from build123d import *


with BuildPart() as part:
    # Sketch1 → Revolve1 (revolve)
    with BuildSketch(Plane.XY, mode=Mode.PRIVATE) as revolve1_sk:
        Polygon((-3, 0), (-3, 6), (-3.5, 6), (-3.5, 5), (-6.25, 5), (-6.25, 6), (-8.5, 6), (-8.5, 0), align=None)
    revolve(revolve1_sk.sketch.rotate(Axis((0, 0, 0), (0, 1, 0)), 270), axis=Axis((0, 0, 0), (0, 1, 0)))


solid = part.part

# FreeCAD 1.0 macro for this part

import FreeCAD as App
import Part
import Sketcher

V = App.Vector

doc = App.newDocument("Part")
body = doc.addObject("PartDesign::Body", "Body")

# Sketch on XY plane
sketch1 = body.newObject("Sketcher::SketchObject", "Sketch")
sketch1.AttachmentSupport = (doc.getObject("XY_Plane"), [""])
sketch1.MapMode = "FlatFace"
sketch1.addGeometry([
    Part.LineSegment(V(-3, 0, 0), V(-3, 6, 0)),  # 0
    Part.LineSegment(V(-3, 6, 0), V(-3.5, 6, 0)),  # 1
    Part.LineSegment(V(-3.5, 6, 0), V(-3.5, 5, 0)),  # 2
    Part.LineSegment(V(-3.5, 5, 0), V(-6.2, 5, 0)),  # 3
    Part.LineSegment(V(-6.2, 5, 0), V(-6.2, 6, 0)),  # 4
    Part.LineSegment(V(-6.2, 6, 0), V(-8.5, 6, 0)),  # 5
    Part.LineSegment(V(-8.5, 6, 0), V(-8.5, 0, 0)),  # 6
    Part.LineSegment(V(-8.5, 0, 0), V(-3, 0, 0)),  # 7
], False)
sketch1.addConstraint([
    Sketcher.Constraint("Coincident", 0, 2, 1, 1),
    Sketcher.Constraint("Coincident", 1, 2, 2, 1),
    Sketcher.Constraint("Coincident", 2, 2, 3, 1),
    Sketcher.Constraint("Coincident", 3, 2, 4, 1),
    Sketcher.Constraint("Coincident", 4, 2, 5, 1),
    Sketcher.Constraint("Coincident", 5, 2, 6, 1),
    Sketcher.Constraint("Coincident", 6, 2, 7, 1),
    Sketcher.Constraint("Coincident", 7, 2, 0, 1),
    Sketcher.Constraint("Vertical", 0),
    Sketcher.Constraint("Horizontal", 1),
    Sketcher.Constraint("Vertical", 2),
    Sketcher.Constraint("Horizontal", 3),
    Sketcher.Constraint("Vertical", 4),
    Sketcher.Constraint("Horizontal", 5),
    Sketcher.Constraint("Vertical", 6),
    Sketcher.Constraint("Horizontal", 7),
    Sketcher.Constraint("PointOnObject", 6, 2, -1),
    Sketcher.Constraint("Horizontal", 1, 2, 4, 2),
    Sketcher.Constraint("DistanceY", 0, 1, 0, 2, 6.0),
    Sketcher.Constraint("DistanceY", 2, 2, 2, 1, 1.0),
    Sketcher.Constraint("DistanceX", 1, 2, 1, 1, 0.5),
    Sketcher.Constraint("DistanceX", 7, 1, 7, 2, 5.5),
    Sketcher.Constraint("DistanceX", 0, 2, -1, 1, 3.0),
    Sketcher.Constraint("DistanceX", 3, 2, 3, 1, 2.75),
])
revolution = body.newObject("PartDesign::Revolution", "Revolution")
revolution.Profile = sketch1
revolution.ReferenceAxis = (sketch1, ["V_Axis"])
revolution.Angle = 360

doc.recompute()
